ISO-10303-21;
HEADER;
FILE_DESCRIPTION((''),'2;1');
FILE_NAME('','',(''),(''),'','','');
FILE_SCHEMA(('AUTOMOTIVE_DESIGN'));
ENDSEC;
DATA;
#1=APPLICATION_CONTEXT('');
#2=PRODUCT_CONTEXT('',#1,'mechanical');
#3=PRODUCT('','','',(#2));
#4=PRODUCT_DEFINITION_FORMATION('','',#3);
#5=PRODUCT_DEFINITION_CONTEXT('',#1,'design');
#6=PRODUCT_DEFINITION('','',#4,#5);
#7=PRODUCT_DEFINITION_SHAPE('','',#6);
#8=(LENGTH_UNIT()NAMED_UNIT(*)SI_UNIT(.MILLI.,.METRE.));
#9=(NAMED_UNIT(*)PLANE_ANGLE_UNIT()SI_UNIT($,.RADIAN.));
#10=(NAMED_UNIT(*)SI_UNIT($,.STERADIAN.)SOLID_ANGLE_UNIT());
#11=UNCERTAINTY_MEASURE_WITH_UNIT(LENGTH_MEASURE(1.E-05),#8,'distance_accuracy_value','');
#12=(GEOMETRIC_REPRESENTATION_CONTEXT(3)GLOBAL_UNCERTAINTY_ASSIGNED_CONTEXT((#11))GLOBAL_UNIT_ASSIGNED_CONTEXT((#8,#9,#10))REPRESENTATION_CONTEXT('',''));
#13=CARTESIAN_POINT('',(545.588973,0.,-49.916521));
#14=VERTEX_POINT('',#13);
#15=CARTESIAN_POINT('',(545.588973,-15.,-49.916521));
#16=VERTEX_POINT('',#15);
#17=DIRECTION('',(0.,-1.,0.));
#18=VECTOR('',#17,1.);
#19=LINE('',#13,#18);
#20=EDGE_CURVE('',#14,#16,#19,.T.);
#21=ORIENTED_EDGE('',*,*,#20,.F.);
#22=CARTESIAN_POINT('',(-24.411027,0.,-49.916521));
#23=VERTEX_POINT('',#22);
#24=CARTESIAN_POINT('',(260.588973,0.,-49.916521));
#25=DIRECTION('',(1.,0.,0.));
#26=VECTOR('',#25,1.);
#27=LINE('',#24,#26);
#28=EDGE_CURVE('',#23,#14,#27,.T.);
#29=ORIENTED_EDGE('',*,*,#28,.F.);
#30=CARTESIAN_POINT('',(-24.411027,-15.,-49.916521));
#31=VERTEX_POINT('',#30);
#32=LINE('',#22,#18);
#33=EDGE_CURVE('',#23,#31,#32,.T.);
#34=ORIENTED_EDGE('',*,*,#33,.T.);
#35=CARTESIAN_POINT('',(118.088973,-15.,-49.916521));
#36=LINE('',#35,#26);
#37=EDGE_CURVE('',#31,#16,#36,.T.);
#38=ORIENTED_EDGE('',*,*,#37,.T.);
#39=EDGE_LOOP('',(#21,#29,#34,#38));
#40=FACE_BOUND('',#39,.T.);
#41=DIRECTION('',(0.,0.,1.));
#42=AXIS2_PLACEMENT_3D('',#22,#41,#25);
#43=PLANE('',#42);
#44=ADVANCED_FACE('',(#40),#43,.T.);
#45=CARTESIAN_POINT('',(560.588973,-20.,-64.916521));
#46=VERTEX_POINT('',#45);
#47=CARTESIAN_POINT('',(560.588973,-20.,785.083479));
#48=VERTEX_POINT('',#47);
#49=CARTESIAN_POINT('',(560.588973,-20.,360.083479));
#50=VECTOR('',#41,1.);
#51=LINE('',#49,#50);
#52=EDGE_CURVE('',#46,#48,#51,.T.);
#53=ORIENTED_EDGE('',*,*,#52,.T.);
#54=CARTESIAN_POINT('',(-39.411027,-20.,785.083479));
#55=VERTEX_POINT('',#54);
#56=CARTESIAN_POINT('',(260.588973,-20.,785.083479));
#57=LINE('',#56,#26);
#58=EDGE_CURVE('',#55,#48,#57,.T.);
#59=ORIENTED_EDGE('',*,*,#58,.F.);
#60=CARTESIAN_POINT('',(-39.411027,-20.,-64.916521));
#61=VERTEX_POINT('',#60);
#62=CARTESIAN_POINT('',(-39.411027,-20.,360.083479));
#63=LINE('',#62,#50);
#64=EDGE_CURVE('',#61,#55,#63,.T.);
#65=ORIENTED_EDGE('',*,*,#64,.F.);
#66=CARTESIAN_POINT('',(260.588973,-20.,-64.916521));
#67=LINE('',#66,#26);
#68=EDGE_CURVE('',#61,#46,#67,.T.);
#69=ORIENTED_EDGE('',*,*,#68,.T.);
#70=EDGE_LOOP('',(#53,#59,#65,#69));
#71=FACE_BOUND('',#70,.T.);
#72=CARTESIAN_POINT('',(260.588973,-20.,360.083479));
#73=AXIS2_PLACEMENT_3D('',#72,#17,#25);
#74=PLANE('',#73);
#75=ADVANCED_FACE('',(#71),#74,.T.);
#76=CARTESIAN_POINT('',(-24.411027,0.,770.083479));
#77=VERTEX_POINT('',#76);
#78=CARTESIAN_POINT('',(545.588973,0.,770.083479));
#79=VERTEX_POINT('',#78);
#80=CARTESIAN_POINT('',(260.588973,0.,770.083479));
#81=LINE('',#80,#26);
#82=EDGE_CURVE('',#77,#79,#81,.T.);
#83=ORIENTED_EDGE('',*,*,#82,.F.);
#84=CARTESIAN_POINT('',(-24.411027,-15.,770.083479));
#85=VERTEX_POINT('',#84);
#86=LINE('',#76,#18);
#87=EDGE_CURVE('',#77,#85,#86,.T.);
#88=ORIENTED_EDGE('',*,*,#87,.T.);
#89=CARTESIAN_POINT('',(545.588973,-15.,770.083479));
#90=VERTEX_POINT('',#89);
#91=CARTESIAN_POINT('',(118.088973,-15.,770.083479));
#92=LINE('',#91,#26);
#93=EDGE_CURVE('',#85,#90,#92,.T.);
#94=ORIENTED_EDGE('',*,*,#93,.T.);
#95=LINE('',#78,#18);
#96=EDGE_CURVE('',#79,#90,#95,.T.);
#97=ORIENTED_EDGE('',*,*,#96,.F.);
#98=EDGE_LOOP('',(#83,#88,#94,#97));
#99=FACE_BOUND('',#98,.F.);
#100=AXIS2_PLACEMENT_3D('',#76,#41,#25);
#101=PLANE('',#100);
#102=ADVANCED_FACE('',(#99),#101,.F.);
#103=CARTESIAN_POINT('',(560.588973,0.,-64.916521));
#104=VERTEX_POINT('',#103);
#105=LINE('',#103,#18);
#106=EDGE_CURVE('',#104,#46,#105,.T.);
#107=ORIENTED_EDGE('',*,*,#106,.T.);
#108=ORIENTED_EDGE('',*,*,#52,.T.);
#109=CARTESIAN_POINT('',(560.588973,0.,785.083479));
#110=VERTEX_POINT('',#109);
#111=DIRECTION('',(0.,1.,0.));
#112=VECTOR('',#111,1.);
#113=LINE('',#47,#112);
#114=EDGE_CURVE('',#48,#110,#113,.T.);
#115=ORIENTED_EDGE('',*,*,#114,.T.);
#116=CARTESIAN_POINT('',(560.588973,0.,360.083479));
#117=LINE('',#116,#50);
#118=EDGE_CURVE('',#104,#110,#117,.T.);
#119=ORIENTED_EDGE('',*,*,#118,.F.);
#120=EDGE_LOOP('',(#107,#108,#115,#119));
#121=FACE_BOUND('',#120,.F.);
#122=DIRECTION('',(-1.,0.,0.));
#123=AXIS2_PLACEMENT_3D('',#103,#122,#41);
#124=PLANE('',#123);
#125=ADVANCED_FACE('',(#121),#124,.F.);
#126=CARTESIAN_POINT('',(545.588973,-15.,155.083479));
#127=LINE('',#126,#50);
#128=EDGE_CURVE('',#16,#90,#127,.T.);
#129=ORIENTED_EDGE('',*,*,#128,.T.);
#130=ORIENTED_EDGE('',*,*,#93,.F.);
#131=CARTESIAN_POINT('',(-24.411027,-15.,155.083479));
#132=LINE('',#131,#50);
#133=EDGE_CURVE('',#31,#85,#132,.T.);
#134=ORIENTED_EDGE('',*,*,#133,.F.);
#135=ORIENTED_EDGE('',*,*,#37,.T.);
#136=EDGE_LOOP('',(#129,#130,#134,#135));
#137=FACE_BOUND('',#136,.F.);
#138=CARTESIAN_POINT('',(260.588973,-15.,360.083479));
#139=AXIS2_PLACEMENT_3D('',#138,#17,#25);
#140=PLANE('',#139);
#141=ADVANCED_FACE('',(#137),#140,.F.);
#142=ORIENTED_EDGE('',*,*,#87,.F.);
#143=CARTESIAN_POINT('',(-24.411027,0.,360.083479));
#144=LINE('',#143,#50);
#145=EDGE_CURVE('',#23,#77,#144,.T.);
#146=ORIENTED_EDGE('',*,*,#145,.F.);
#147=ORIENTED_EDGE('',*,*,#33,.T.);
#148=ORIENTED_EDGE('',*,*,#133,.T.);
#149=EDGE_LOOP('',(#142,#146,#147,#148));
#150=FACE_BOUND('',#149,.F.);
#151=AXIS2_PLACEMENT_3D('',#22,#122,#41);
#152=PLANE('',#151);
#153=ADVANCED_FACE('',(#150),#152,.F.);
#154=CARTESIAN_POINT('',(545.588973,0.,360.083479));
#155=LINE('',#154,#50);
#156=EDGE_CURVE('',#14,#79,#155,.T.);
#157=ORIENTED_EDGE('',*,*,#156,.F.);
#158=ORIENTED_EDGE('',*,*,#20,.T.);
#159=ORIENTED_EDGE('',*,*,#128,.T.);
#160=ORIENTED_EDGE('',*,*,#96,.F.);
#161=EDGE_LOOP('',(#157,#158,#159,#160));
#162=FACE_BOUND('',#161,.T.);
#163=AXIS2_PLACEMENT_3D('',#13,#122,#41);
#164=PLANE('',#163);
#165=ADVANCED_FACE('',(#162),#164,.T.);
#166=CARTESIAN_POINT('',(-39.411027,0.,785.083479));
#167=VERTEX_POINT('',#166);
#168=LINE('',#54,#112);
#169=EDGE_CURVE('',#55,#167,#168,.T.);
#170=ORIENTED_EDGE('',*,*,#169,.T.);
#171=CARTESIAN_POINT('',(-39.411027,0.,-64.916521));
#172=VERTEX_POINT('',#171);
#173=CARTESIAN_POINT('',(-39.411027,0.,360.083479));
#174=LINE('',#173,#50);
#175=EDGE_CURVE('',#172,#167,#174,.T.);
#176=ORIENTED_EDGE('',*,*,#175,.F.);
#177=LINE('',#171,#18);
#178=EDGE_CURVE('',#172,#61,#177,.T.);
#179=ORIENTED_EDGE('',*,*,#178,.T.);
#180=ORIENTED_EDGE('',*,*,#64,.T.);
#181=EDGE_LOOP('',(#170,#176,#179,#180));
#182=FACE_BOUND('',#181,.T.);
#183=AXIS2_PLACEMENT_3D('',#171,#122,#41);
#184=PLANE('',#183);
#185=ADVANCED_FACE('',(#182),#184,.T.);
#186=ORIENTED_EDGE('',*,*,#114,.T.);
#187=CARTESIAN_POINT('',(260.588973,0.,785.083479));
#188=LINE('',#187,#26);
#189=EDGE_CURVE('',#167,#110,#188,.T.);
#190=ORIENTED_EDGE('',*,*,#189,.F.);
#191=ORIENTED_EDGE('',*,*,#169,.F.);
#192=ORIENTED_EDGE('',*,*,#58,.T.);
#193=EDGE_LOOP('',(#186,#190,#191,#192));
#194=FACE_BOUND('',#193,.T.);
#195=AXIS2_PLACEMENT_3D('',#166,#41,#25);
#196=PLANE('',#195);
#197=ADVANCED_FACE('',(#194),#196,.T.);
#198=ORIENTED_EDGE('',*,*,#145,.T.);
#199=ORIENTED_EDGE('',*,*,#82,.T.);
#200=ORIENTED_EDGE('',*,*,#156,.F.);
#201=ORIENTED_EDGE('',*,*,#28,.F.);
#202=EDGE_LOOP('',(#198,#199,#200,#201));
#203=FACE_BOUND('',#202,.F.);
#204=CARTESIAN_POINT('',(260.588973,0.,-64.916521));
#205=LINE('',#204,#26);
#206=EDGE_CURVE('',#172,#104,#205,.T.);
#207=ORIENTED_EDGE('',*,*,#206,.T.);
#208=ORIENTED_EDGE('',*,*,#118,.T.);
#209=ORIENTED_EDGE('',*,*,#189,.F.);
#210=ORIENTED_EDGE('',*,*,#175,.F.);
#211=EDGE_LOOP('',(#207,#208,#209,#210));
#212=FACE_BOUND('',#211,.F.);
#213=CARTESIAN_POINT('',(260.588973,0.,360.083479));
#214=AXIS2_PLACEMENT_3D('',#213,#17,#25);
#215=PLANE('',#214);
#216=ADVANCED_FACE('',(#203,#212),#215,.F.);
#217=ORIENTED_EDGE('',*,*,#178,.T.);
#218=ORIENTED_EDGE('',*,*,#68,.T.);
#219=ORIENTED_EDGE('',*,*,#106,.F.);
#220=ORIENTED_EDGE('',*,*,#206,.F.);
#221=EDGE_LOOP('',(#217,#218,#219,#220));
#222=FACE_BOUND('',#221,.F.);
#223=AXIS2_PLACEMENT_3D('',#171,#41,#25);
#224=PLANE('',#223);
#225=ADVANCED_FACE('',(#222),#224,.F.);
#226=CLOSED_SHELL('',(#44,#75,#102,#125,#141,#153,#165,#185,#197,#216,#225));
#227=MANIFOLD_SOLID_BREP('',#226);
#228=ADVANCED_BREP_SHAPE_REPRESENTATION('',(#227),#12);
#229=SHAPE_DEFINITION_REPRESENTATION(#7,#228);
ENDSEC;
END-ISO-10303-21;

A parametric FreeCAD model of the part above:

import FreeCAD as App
import Part
import Sketcher
from FreeCAD import Vector


def add_polygon(sketch, points):
    """Adds a closed chain of lines whose ends are joined by coincident constraints."""
    first, n = sketch.GeometryCount, len(points)
    for a, b in zip(points, points[1:] + points[:1]):
        sketch.addGeometry(Part.LineSegment(App.Vector(*a, 0), App.Vector(*b, 0)), False)
    for i in range(n):
        sketch.addConstraint(Sketcher.Constraint("Coincident", first + i, 2, first + (i + 1) % n, 1))

doc = App.newDocument("Part")
body = doc.addObject("PartDesign::Body", "Body")

sketch1 = body.newObject("Sketcher::SketchObject", "Sketch")
sketch1.AttachmentSupport = (doc.getObject("XZ_Plane"), [""])
sketch1.MapMode = "FlatFace"
add_polygon(sketch1, [(-39, 785), (-39, -65), (561, -65), (561, 785)])
add_polygon(sketch1, [(546, -50), (-24, -50), (-24, 770), (546, 770)])
sketch1.addConstraint([
    Sketcher.Constraint("Vertical", 0),
    Sketcher.Constraint("Horizontal", 1),
    Sketcher.Constraint("Vertical", 2),
    Sketcher.Constraint("Horizontal", 3),
    Sketcher.Constraint("Horizontal", 4),
    Sketcher.Constraint("Vertical", 5),
    Sketcher.Constraint("Horizontal", 6),
    Sketcher.Constraint("Vertical", 7),
    Sketcher.Constraint("DistanceX", 1, 1, 1, 2, 600.0),
    Sketcher.Constraint("DistanceX", 4, 2, 4, 1, 570.0),
    Sketcher.Constraint("DistanceY", 0, 2, 0, 1, 850.0),
    Sketcher.Constraint("DistanceY", 5, 1, 5, 2, 820.0),
    Sketcher.Constraint("DistanceX", 0, 2, 4, 2, 15.0),
    Sketcher.Constraint("DistanceY", 0, 2, 4, 2, 15.0),
    Sketcher.Constraint("DistanceY", 0, 2, -1, 1, 64.916521),
    Sketcher.Constraint("DistanceX", 0, 2, -1, 1, 39.411027),
])
pad1 = body.newObject("PartDesign::Pad", "Pad")
pad1.Profile = sketch1
pad1.Length = 20

sketch2 = body.newObject("Sketcher::SketchObject", "Sketch001")
sketch2.AttachmentSupport = (doc.getObject("XZ_Plane"), [""])
sketch2.MapMode = "FlatFace"
sketch2.AttachmentOffset = App.Placement(Vector(0, 0, 20), App.Rotation())
add_polygon(sketch2, [(-39, 785), (-39, -65), (561, -65), (561, 785)])
sketch2.addConstraint([
    Sketcher.Constraint("Vertical", 0),
    Sketcher.Constraint("Horizontal", 1),
    Sketcher.Constraint("Vertical", 2),
    Sketcher.Constraint("Horizontal", 3),
    Sketcher.Constraint("DistanceX", 1, 1, 1, 2, 600.0),
    Sketcher.Constraint("DistanceY", 0, 2, 0, 1, 850.0),
    Sketcher.Constraint("DistanceY", 0, 2, -1, 1, 64.916521),
    Sketcher.Constraint("DistanceX", 0, 2, -1, 1, 39.411027),
])
pad2 = body.newObject("PartDesign::Pad", "Pad001")
pad2.Profile = sketch2
pad2.Length = 5
pad2.Reversed = True

doc.recompute()
